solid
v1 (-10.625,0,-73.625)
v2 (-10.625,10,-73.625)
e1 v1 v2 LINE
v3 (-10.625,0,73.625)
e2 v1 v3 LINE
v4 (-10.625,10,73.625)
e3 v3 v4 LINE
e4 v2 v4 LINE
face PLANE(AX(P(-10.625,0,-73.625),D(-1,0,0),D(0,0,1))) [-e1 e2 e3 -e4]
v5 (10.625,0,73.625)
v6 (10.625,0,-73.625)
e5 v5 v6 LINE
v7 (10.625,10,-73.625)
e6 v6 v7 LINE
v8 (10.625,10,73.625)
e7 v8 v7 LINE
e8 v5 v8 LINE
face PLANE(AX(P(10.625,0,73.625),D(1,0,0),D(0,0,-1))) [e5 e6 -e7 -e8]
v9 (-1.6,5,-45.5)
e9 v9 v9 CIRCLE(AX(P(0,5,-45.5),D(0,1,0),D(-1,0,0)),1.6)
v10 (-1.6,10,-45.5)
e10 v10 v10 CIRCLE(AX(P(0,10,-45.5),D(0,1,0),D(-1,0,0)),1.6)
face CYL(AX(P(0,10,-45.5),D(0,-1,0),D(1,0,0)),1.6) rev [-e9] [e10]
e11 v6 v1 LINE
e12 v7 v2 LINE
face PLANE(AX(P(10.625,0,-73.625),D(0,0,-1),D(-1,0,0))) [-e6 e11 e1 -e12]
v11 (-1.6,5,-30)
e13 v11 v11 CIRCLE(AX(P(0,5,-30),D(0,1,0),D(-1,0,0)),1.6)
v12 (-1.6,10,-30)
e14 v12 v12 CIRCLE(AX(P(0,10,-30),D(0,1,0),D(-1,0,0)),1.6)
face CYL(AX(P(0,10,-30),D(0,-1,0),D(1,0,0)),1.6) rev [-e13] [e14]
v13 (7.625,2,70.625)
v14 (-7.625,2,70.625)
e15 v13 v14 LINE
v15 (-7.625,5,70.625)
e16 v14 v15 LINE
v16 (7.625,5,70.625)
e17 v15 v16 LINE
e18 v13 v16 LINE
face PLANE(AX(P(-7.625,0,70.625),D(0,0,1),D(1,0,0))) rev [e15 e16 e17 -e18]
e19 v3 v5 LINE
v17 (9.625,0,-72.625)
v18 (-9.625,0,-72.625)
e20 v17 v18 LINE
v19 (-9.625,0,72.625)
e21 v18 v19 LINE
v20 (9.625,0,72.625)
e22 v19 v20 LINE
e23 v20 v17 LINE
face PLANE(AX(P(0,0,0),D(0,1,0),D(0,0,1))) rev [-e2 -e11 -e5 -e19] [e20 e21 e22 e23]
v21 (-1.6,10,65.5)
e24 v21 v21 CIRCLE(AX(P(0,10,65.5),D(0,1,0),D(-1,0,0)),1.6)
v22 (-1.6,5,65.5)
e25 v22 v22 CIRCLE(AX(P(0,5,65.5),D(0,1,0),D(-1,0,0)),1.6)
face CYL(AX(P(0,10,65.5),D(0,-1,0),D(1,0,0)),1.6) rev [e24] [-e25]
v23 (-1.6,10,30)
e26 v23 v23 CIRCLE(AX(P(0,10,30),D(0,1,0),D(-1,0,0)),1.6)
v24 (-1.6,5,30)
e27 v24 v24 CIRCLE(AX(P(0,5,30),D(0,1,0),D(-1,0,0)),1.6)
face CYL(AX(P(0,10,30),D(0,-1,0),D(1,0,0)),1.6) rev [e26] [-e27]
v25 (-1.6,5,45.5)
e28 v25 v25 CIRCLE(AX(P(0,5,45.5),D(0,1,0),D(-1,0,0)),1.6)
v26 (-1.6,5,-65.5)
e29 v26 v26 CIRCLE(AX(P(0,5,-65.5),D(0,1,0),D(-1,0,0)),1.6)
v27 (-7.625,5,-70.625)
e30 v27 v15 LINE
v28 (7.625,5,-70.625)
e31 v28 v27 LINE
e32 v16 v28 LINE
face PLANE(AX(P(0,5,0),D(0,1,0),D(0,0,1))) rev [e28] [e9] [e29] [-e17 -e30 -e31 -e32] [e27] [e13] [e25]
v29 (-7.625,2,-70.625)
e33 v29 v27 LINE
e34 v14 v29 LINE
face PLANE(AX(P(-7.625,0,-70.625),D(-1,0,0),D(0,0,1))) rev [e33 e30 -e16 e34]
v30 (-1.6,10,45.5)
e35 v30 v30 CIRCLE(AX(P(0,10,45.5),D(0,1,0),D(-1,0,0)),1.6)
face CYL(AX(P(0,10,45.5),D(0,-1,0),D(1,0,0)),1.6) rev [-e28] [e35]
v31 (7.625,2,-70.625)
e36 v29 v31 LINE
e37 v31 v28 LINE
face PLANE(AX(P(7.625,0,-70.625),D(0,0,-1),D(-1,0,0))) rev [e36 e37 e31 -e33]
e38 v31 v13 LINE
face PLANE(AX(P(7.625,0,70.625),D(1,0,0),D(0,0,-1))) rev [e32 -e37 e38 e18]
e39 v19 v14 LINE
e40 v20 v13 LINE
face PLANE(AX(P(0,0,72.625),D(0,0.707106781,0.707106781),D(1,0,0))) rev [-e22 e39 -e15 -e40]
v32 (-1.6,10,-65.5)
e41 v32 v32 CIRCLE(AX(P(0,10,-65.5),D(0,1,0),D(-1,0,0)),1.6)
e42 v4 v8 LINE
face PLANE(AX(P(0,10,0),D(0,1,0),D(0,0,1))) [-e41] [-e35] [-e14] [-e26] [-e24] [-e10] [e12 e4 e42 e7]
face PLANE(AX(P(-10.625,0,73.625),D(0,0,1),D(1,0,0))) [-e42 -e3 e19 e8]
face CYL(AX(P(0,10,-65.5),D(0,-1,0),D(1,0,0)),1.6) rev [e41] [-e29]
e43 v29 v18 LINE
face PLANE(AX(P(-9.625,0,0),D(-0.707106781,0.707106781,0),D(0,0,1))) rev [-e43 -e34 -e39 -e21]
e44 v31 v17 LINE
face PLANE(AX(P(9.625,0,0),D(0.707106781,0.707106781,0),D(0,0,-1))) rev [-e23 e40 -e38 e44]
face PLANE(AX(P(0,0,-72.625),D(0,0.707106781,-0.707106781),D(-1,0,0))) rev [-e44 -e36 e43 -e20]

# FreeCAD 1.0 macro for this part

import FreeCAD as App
import Part
import Sketcher


def edges_at(feature, points):
    """Names of the edges that pass closest to the given points."""
    edges = feature.Shape.Edges
    near = lambda p: min(range(len(edges)), key=lambda i: edges[i].distToShape(Part.Vertex(*p))[0])
    return sorted({f"Edge{near(p) + 1}" for p in points})


def add_polygon(sketch, points):
    """Adds a closed chain of lines whose ends are joined by coincident constraints."""
    first, n = sketch.GeometryCount, len(points)
    for a, b in zip(points, points[1:] + points[:1]):
        sketch.addGeometry(Part.LineSegment(App.Vector(*a, 0), App.Vector(*b, 0)), False)
    for i in range(n):
        sketch.addConstraint(Sketcher.Constraint("Coincident", first + i, 2, first + (i + 1) % n, 1))

doc = App.newDocument("Part")
body = doc.addObject("PartDesign::Body", "Body")

sketch1 = body.newObject("Sketcher::SketchObject", "Sketch")
sketch1.AttachmentSupport = (doc.getObject("XZ_Plane"), [""])
sketch1.MapMode = "FlatFace"
sketch1.AttachmentOffset = App.Placement(App.Vector(0, 0, -5), App.Rotation())
add_polygon(sketch1, [(-7.6, -70.6), (-7.6, 70.6), (7.6, 70.6), (7.6, -70.6)])
sketch1.addGeometry(Part.Circle(App.Vector(0, 65.5, 0), App.Vector(0, 0, 1), 1.6), False)
sketch1.addGeometry(Part.Circle(App.Vector(0, 45.5, 0), App.Vector(0, 0, 1), 1.6), False)
sketch1.addGeometry(Part.Circle(App.Vector(0, 30, 0), App.Vector(0, 0, 1), 1.6), False)
sketch1.addGeometry(Part.Circle(App.Vector(0, -30, 0), App.Vector(0, 0, 1), 1.6), False)
sketch1.addGeometry(Part.Circle(App.Vector(0, -45.5, 0), App.Vector(0, 0, 1), 1.6), False)
sketch1.addGeometry(Part.Circle(App.Vector(0, -65.5, 0), App.Vector(0, 0, 1), 1.6), False)
sketch1.addConstraint(Sketcher.Constraint("Vertical", 0))
sketch1.addConstraint(Sketcher.Constraint("Horizontal", 1))
sketch1.addConstraint(Sketcher.Constraint("Vertical", 2))
sketch1.addConstraint(Sketcher.Constraint("Horizontal", 3))
sketch1.addConstraint(Sketcher.Constraint("Equal", 4, 5))
sketch1.addConstraint(Sketcher.Constraint("Equal", 5, 6))
sketch1.addConstraint(Sketcher.Constraint("Equal", 6, 7))
sketch1.addConstraint(Sketcher.Constraint("Equal", 7, 8))
sketch1.addConstraint(Sketcher.Constraint("Equal", 8, 9))
sketch1.addConstraint(Sketcher.Constraint("Symmetric", 6, 3, 7, 3, -1, 1))
sketch1.addConstraint(Sketcher.Constraint("Symmetric", 5, 3, 8, 3, -1, 1))
sketch1.addConstraint(Sketcher.Constraint("Symmetric", 4, 3, 9, 3, -1, 1))
sketch1.addConstraint(Sketcher.Constraint("Symmetric", 0, 2, 2, 2, -1, 1))
sketch1.addConstraint(Sketcher.Constraint("PointOnObject", 4, 3, -2))
sketch1.addConstraint(Sketcher.Constraint("PointOnObject", 5, 3, -2))
sketch1.addConstraint(Sketcher.Constraint("PointOnObject", 6, 3, -2))
sketch1.addConstraint(Sketcher.Constraint("Diameter", 4, 3.2))
sketch1.addConstraint(Sketcher.Constraint("DistanceY", -1, 1, 6, 3, 30.0))
sketch1.addConstraint(Sketcher.Constraint("DistanceY", 5, 3, 4, 3, 20.0))
sketch1.addConstraint(Sketcher.Constraint("DistanceY", 8, 3, 5, 3, 91.0))
sketch1.addConstraint(Sketcher.Constraint("DistanceX", 1, 1, 1, 2, 15.25))
sketch1.addConstraint(Sketcher.Constraint("DistanceY", 0, 1, 0, 2, 141.25))
pad1 = body.newObject("PartDesign::Pad", "Pad")
pad1.Profile = sketch1
pad1.Length = 5
pad1.Reversed = True

sketch2 = body.newObject("Sketcher::SketchObject", "Sketch001")
sketch2.AttachmentSupport = (doc.getObject("XZ_Plane"), [""])
sketch2.MapMode = "FlatFace"
sketch2.AttachmentOffset = App.Placement(App.Vector(0, 0, -10), App.Rotation())
add_polygon(sketch2, [(-11, -74), (-11, 74), (11, 74), (11, -74)])
add_polygon(sketch2, [(8, 71), (-8, 71), (-8, -71), (8, -71)])
sketch2.addConstraint(Sketcher.Constraint("Vertical", 0))
sketch2.addConstraint(Sketcher.Constraint("Horizontal", 1))
sketch2.addConstraint(Sketcher.Constraint("Vertical", 2))
sketch2.addConstraint(Sketcher.Constraint("Horizontal", 3))
sketch2.addConstraint(Sketcher.Constraint("Horizontal", 4))
sketch2.addConstraint(Sketcher.Constraint("Vertical", 5))
sketch2.addConstraint(Sketcher.Constraint("Horizontal", 6))
sketch2.addConstraint(Sketcher.Constraint("Vertical", 7))
sketch2.addConstraint(Sketcher.Constraint("Symmetric", 0, 2, 2, 2, -1, 1))
sketch2.addConstraint(Sketcher.Constraint("Symmetric", 4, 2, 6, 2, -1, 1))
sketch2.addConstraint(Sketcher.Constraint("DistanceX", 0, 2, 4, 2, 3.0))
sketch2.addConstraint(Sketcher.Constraint("DistanceY", 4, 2, 0, 2, 3.0))
sketch2.addConstraint(Sketcher.Constraint("DistanceX", 1, 1, 1, 2, 21.25))
sketch2.addConstraint(Sketcher.Constraint("DistanceY", 0, 1, 0, 2, 147.25))
pad2 = body.newObject("PartDesign::Pad", "Pad001")
pad2.Profile = sketch2
pad2.Length = 10
doc.recompute()

chamfer = body.newObject("PartDesign::Chamfer", "Chamfer")
chamfer.Base = (pad2, edges_at(pad2, [
    (-7.625, 0, 0),
    (0, 0, 70.625),
    (7.625, 0, 0),
    (0, 0, -70.625),
]))
chamfer.Size = 2

doc.recompute()
